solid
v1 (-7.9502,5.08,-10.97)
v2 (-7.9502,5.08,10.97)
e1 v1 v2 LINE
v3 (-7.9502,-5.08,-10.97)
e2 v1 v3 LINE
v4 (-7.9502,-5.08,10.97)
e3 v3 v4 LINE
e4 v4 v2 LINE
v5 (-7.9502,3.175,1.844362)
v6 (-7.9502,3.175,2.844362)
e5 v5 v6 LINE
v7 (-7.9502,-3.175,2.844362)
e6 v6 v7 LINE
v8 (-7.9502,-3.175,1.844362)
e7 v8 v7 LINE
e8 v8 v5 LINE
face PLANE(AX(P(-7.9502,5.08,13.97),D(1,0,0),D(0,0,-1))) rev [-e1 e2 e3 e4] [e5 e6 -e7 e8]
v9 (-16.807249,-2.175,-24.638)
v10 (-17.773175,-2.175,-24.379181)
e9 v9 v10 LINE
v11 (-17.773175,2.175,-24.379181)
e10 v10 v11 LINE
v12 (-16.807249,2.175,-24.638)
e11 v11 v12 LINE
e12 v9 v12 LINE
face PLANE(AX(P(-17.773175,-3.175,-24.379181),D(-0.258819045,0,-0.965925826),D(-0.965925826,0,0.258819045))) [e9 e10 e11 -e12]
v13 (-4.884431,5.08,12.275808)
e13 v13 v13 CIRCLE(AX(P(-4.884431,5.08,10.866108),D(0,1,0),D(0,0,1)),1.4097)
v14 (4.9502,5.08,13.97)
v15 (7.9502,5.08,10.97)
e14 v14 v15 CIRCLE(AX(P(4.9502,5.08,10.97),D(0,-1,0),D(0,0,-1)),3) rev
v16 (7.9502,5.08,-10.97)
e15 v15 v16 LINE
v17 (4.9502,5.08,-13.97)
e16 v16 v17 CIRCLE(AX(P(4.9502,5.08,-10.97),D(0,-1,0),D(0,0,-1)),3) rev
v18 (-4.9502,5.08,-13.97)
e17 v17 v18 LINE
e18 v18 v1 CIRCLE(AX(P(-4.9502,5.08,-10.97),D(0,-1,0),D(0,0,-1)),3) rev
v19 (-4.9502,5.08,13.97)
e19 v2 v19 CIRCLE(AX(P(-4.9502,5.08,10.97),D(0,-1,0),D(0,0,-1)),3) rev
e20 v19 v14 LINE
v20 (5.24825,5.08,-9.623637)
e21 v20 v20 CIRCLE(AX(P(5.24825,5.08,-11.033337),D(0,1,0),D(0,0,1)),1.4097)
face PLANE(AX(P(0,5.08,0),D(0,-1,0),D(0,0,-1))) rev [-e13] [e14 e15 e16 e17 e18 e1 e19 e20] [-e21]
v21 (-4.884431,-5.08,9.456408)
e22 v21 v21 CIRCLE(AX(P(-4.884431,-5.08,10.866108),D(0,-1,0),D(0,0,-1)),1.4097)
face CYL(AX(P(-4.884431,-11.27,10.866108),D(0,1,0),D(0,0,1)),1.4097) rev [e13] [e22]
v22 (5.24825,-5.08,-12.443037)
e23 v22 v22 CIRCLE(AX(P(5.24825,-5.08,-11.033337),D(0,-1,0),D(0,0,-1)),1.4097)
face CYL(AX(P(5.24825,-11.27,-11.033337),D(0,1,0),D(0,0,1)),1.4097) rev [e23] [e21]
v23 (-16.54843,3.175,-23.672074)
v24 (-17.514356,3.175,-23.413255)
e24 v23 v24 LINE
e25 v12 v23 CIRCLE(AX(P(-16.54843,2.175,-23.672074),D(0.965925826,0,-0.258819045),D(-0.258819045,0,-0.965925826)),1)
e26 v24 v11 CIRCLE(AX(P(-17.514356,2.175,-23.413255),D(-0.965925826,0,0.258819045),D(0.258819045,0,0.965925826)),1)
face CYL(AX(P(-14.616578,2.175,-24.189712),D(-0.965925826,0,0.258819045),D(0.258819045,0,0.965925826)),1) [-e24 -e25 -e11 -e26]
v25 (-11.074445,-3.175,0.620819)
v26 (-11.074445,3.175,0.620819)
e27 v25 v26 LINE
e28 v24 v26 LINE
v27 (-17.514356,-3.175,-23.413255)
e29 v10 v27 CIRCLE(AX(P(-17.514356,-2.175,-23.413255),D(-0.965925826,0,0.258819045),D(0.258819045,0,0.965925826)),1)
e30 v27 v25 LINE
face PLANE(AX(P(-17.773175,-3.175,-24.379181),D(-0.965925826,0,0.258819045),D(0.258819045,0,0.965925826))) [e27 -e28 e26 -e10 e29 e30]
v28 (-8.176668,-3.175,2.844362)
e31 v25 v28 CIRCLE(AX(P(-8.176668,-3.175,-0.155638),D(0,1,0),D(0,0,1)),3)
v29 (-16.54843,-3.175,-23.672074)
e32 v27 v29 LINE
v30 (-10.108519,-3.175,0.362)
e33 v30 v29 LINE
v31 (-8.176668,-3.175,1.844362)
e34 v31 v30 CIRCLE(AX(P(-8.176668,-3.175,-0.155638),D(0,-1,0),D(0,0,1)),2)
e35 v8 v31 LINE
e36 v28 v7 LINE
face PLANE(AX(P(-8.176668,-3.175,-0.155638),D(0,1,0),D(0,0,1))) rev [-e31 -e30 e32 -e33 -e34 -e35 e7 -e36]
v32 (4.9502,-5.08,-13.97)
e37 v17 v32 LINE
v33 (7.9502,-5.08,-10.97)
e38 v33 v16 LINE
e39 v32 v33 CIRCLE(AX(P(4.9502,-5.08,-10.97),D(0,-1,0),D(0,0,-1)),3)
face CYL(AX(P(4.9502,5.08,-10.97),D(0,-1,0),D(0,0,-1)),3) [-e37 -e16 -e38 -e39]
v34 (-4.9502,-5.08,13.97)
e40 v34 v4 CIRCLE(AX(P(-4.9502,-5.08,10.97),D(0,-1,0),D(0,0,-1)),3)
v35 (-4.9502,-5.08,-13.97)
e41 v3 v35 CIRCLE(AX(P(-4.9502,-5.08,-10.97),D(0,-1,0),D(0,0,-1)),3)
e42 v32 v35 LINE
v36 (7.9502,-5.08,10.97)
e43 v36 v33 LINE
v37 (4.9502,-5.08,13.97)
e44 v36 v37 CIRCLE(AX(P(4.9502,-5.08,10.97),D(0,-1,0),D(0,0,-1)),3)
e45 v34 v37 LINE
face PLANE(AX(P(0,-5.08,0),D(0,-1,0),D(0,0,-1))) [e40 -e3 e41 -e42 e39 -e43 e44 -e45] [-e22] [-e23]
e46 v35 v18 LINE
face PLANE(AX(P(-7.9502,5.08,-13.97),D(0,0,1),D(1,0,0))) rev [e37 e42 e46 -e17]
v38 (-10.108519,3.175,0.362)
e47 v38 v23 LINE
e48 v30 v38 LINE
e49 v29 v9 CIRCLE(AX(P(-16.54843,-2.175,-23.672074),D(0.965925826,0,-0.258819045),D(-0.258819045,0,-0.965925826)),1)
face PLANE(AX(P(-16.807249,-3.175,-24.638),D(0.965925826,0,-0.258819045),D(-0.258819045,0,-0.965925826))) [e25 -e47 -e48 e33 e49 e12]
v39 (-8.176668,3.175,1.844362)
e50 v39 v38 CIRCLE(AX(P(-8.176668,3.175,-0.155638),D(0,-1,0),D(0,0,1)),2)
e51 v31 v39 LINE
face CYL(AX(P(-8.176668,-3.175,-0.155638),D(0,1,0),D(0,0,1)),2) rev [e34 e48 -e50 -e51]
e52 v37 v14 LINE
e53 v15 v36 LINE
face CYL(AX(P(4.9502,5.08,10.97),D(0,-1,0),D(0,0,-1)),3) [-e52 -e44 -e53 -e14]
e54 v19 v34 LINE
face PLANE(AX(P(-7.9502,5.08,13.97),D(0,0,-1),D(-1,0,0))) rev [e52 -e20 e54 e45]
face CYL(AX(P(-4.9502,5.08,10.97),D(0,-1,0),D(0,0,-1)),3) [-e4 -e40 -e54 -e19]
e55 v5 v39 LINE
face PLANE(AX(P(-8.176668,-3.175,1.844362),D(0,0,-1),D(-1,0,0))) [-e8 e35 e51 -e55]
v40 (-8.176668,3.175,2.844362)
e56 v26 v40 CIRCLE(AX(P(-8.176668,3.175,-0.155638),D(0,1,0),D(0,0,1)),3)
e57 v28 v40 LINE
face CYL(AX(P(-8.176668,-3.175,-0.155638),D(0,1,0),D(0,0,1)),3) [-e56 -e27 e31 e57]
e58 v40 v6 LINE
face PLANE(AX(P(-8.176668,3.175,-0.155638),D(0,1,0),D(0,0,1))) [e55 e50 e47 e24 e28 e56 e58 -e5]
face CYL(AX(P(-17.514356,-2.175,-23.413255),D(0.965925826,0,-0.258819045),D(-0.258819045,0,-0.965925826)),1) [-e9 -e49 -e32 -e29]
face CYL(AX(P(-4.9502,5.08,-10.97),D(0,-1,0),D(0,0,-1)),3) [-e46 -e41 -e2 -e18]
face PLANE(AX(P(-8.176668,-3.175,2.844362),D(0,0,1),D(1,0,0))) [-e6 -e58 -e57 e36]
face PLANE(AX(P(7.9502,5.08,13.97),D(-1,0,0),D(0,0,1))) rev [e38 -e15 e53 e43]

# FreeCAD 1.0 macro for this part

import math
import FreeCAD as App
import Part
import Sketcher
Q = App.Units.Quantity


def edges_at(feature, points):
    """Names of the edges that pass closest to the given points."""
    edges = feature.Shape.Edges
    near = lambda p: min(range(len(edges)), key=lambda i: edges[i].distToShape(Part.Vertex(*p))[0])
    return sorted({f"Edge{near(p) + 1}" for p in points})


def add_polygon(sketch, points):
    """Adds a closed chain of lines whose ends are joined by coincident constraints."""
    first, n = sketch.GeometryCount, len(points)
    for a, b in zip(points, points[1:] + points[:1]):
        sketch.addGeometry(Part.LineSegment(App.Vector(*a, 0), App.Vector(*b, 0)), False)
    for i in range(n):
        sketch.addConstraint(Sketcher.Constraint("Coincident", first + i, 2, first + (i + 1) % n, 1))

doc = App.newDocument("Part")
params = doc.addObject("Spreadsheet::Sheet", "Params")
for row, (alias, value) in enumerate([
    ("sketch1_height", "1.1 in"),
    ("sketch1_width", "0.626 in"),
    ("pad1_length", "0.4 in"),
    ("fillet_radius", "3 mm"),
    ("pad2_length", "0.25 in"),
    ("fillet2_radius", "1 mm"),
    ("sketch3_diameter", "0.111 in"),
    ("pocket1_length", "16.35 mm"),
], start=1):
    params.set(f"A{row}", alias)
    params.set(f"B{row}", "=" + value)
    params.setAlias(f"B{row}", alias)

body = doc.addObject("PartDesign::Body", "Body")

# Sketch on XZ plane
sketch1 = body.newObject("Sketcher::SketchObject", "Sketch")
sketch1.AttachmentSupport = (doc.getObject("XZ_Plane"), [""])
sketch1.MapMode = "FlatFace"
add_polygon(sketch1, [(-7.9502, -13.97), (-7.9502, 13.97), (7.9502, 13.97), (7.9502, -13.97)])  # lines 0-3
sketch1.addConstraint([
    Sketcher.Constraint("Vertical", 0),
    Sketcher.Constraint("Horizontal", 1),
    Sketcher.Constraint("Vertical", 2),
    Sketcher.Constraint("Horizontal", 3),
    Sketcher.Constraint("Symmetric", 0, 2, 2, 2, -1, 1),
    Sketcher.Constraint("DistanceY", 0, 1, 0, 2, Q("1.1 in")),
    Sketcher.Constraint("DistanceX", 1, 1, 1, 2, Q("0.626 in")),
])
sketch1.setExpression("Constraints[9]", "Params.sketch1_height")
sketch1.setExpression("Constraints[10]", "Params.sketch1_width")
pad1 = body.newObject("PartDesign::Pad", "Pad")
pad1.Profile = sketch1
pad1.setExpression("Length", "Params.pad1_length")
pad1.Midplane = True
doc.recompute()

fillet = body.newObject("PartDesign::Fillet", "Fillet")
fillet.Base = (pad1, edges_at(pad1, [
    (7.95, 0, 13.97),
    (-7.95, 0, 13.97),
    (-7.95, 0, -13.97),
    (7.95, 0, -13.97),
]))
fillet.setExpression("Radius", "Params.fillet_radius")

# Sketch on XZ plane
sketch2 = body.newObject("Sketcher::SketchObject", "Sketch001")
sketch2.AttachmentSupport = (doc.getObject("XZ_Plane"), [""])
sketch2.MapMode = "FlatFace"
sketch2.addGeometry([
    Part.LineSegment(App.Vector(-17.773175, -24.379181, 0), App.Vector(-11.074445, 0.620819, 0)),  # 0
    Part.ArcOfCircle(Part.Circle(App.Vector(-8.176668, -0.155638, 0), App.Vector(0, 0, 1), 3), math.radians(90), math.radians(165)),  # 1
    Part.LineSegment(App.Vector(-8.176668, 2.844362, 0), App.Vector(-3.749368, 2.844362, 0)),  # 2
    Part.LineSegment(App.Vector(-3.749368, 2.844362, 0), App.Vector(-3.749368, 1.844362, 0)),  # 3
    Part.LineSegment(App.Vector(-3.749368, 1.844362, 0), App.Vector(-8.176668, 1.844362, 0)),  # 4
    Part.ArcOfCircle(Part.Circle(App.Vector(-8.176668, -0.155638, 0), App.Vector(0, 0, 1), 2), math.radians(90), math.radians(165)),  # 5
    Part.LineSegment(App.Vector(-10.108519, 0.362, 0), App.Vector(-16.807249, -24.638, 0)),  # 6
    Part.LineSegment(App.Vector(-16.807249, -24.638, 0), App.Vector(-17.773175, -24.379181, 0)),  # 7
], False)
sketch2.addConstraint([
    Sketcher.Constraint("Tangent", 0, 2, 1, 2),
    Sketcher.Constraint("Tangent", 1, 1, 2, 1),
    Sketcher.Constraint("Coincident", 2, 2, 3, 1),
    Sketcher.Constraint("Coincident", 3, 2, 4, 1),
    Sketcher.Constraint("Tangent", 4, 2, 5, 1),
    Sketcher.Constraint("Tangent", 5, 2, 6, 1),
    Sketcher.Constraint("Coincident", 6, 2, 7, 1),
    Sketcher.Constraint("Coincident", 7, 2, 0, 1),
    Sketcher.Constraint("Horizontal", 2),
    Sketcher.Constraint("Vertical", 3),
    Sketcher.Constraint("Horizontal", 4),
    Sketcher.Constraint("Coincident", 5, 3, 1, 3),
    Sketcher.Constraint("Parallel", 0, 6),
    Sketcher.Constraint("Perpendicular", 6, 7),
    Sketcher.Constraint("Angle", 0, Q("75 deg")),
    Sketcher.Constraint("DistanceY", 6, 2, -1, 1, Q("0.97 in")),
    Sketcher.Constraint("Radius", 1, Q("3 mm")),
    Sketcher.Constraint("Radius", 5, Q("2 mm")),
    Sketcher.Constraint("DistanceX", 2, 1, 2, 2, Q("4.4273 mm")),
    Sketcher.Constraint("DistanceY", -1, 1, 5, 2, Q("0.362 mm")),
    Sketcher.Constraint("DistanceX", 5, 2, -1, 1, Q("10.108519 mm")),
])
pad2 = body.newObject("PartDesign::Pad", "Pad001")
pad2.Profile = sketch2
pad2.setExpression("Length", "Params.pad2_length")
pad2.Midplane = True
doc.recompute()

fillet2 = body.newObject("PartDesign::Fillet", "Fillet001")
fillet2.Base = (pad2, edges_at(pad2, [(-17.29, 3.175, -24.509), (-17.29, -3.175, -24.509)]))
fillet2.setExpression("Radius", "Params.fillet2_radius")

# Sketch on XZ plane
sketch3 = body.newObject("Sketcher::SketchObject", "Sketch002")
sketch3.AttachmentSupport = (doc.getObject("XZ_Plane"), [""])
sketch3.MapMode = "FlatFace"
sketch3.AttachmentOffset = App.Placement(App.Vector(0, 0, -0.2 * 25.4), App.Rotation())
sketch3.addGeometry([
    Part.Circle(App.Vector(5.24825, -11.033337, 0), App.Vector(0, 0, 1), 1.4097),
    Part.Circle(App.Vector(-4.884431, 10.866108, 0), App.Vector(0, 0, 1), 1.4097),
], False)
sketch3.addConstraint([
    Sketcher.Constraint("Equal", 0, 1),
    Sketcher.Constraint("Diameter", 0, Q("0.111 in")),
    Sketcher.Constraint("DistanceX", -1, 1, 0, 3, Q("5.24825 mm")),
    Sketcher.Constraint("DistanceX", 1, 3, -1, 1, Q("4.884431 mm")),
    Sketcher.Constraint("DistanceY", -1, 1, 1, 3, Q("10.866108 mm")),
    Sketcher.Constraint("DistanceY", 0, 3, -1, 1, Q("11.033337 mm")),
])
sketch3.setExpression("Constraints[1]", "Params.sketch3_diameter")
pocket1 = body.newObject("PartDesign::Pocket", "Pocket")
pocket1.Profile = sketch3
pocket1.setExpression("Length", "Params.pocket1_length")
pocket1.Reversed = True

doc.recompute()
